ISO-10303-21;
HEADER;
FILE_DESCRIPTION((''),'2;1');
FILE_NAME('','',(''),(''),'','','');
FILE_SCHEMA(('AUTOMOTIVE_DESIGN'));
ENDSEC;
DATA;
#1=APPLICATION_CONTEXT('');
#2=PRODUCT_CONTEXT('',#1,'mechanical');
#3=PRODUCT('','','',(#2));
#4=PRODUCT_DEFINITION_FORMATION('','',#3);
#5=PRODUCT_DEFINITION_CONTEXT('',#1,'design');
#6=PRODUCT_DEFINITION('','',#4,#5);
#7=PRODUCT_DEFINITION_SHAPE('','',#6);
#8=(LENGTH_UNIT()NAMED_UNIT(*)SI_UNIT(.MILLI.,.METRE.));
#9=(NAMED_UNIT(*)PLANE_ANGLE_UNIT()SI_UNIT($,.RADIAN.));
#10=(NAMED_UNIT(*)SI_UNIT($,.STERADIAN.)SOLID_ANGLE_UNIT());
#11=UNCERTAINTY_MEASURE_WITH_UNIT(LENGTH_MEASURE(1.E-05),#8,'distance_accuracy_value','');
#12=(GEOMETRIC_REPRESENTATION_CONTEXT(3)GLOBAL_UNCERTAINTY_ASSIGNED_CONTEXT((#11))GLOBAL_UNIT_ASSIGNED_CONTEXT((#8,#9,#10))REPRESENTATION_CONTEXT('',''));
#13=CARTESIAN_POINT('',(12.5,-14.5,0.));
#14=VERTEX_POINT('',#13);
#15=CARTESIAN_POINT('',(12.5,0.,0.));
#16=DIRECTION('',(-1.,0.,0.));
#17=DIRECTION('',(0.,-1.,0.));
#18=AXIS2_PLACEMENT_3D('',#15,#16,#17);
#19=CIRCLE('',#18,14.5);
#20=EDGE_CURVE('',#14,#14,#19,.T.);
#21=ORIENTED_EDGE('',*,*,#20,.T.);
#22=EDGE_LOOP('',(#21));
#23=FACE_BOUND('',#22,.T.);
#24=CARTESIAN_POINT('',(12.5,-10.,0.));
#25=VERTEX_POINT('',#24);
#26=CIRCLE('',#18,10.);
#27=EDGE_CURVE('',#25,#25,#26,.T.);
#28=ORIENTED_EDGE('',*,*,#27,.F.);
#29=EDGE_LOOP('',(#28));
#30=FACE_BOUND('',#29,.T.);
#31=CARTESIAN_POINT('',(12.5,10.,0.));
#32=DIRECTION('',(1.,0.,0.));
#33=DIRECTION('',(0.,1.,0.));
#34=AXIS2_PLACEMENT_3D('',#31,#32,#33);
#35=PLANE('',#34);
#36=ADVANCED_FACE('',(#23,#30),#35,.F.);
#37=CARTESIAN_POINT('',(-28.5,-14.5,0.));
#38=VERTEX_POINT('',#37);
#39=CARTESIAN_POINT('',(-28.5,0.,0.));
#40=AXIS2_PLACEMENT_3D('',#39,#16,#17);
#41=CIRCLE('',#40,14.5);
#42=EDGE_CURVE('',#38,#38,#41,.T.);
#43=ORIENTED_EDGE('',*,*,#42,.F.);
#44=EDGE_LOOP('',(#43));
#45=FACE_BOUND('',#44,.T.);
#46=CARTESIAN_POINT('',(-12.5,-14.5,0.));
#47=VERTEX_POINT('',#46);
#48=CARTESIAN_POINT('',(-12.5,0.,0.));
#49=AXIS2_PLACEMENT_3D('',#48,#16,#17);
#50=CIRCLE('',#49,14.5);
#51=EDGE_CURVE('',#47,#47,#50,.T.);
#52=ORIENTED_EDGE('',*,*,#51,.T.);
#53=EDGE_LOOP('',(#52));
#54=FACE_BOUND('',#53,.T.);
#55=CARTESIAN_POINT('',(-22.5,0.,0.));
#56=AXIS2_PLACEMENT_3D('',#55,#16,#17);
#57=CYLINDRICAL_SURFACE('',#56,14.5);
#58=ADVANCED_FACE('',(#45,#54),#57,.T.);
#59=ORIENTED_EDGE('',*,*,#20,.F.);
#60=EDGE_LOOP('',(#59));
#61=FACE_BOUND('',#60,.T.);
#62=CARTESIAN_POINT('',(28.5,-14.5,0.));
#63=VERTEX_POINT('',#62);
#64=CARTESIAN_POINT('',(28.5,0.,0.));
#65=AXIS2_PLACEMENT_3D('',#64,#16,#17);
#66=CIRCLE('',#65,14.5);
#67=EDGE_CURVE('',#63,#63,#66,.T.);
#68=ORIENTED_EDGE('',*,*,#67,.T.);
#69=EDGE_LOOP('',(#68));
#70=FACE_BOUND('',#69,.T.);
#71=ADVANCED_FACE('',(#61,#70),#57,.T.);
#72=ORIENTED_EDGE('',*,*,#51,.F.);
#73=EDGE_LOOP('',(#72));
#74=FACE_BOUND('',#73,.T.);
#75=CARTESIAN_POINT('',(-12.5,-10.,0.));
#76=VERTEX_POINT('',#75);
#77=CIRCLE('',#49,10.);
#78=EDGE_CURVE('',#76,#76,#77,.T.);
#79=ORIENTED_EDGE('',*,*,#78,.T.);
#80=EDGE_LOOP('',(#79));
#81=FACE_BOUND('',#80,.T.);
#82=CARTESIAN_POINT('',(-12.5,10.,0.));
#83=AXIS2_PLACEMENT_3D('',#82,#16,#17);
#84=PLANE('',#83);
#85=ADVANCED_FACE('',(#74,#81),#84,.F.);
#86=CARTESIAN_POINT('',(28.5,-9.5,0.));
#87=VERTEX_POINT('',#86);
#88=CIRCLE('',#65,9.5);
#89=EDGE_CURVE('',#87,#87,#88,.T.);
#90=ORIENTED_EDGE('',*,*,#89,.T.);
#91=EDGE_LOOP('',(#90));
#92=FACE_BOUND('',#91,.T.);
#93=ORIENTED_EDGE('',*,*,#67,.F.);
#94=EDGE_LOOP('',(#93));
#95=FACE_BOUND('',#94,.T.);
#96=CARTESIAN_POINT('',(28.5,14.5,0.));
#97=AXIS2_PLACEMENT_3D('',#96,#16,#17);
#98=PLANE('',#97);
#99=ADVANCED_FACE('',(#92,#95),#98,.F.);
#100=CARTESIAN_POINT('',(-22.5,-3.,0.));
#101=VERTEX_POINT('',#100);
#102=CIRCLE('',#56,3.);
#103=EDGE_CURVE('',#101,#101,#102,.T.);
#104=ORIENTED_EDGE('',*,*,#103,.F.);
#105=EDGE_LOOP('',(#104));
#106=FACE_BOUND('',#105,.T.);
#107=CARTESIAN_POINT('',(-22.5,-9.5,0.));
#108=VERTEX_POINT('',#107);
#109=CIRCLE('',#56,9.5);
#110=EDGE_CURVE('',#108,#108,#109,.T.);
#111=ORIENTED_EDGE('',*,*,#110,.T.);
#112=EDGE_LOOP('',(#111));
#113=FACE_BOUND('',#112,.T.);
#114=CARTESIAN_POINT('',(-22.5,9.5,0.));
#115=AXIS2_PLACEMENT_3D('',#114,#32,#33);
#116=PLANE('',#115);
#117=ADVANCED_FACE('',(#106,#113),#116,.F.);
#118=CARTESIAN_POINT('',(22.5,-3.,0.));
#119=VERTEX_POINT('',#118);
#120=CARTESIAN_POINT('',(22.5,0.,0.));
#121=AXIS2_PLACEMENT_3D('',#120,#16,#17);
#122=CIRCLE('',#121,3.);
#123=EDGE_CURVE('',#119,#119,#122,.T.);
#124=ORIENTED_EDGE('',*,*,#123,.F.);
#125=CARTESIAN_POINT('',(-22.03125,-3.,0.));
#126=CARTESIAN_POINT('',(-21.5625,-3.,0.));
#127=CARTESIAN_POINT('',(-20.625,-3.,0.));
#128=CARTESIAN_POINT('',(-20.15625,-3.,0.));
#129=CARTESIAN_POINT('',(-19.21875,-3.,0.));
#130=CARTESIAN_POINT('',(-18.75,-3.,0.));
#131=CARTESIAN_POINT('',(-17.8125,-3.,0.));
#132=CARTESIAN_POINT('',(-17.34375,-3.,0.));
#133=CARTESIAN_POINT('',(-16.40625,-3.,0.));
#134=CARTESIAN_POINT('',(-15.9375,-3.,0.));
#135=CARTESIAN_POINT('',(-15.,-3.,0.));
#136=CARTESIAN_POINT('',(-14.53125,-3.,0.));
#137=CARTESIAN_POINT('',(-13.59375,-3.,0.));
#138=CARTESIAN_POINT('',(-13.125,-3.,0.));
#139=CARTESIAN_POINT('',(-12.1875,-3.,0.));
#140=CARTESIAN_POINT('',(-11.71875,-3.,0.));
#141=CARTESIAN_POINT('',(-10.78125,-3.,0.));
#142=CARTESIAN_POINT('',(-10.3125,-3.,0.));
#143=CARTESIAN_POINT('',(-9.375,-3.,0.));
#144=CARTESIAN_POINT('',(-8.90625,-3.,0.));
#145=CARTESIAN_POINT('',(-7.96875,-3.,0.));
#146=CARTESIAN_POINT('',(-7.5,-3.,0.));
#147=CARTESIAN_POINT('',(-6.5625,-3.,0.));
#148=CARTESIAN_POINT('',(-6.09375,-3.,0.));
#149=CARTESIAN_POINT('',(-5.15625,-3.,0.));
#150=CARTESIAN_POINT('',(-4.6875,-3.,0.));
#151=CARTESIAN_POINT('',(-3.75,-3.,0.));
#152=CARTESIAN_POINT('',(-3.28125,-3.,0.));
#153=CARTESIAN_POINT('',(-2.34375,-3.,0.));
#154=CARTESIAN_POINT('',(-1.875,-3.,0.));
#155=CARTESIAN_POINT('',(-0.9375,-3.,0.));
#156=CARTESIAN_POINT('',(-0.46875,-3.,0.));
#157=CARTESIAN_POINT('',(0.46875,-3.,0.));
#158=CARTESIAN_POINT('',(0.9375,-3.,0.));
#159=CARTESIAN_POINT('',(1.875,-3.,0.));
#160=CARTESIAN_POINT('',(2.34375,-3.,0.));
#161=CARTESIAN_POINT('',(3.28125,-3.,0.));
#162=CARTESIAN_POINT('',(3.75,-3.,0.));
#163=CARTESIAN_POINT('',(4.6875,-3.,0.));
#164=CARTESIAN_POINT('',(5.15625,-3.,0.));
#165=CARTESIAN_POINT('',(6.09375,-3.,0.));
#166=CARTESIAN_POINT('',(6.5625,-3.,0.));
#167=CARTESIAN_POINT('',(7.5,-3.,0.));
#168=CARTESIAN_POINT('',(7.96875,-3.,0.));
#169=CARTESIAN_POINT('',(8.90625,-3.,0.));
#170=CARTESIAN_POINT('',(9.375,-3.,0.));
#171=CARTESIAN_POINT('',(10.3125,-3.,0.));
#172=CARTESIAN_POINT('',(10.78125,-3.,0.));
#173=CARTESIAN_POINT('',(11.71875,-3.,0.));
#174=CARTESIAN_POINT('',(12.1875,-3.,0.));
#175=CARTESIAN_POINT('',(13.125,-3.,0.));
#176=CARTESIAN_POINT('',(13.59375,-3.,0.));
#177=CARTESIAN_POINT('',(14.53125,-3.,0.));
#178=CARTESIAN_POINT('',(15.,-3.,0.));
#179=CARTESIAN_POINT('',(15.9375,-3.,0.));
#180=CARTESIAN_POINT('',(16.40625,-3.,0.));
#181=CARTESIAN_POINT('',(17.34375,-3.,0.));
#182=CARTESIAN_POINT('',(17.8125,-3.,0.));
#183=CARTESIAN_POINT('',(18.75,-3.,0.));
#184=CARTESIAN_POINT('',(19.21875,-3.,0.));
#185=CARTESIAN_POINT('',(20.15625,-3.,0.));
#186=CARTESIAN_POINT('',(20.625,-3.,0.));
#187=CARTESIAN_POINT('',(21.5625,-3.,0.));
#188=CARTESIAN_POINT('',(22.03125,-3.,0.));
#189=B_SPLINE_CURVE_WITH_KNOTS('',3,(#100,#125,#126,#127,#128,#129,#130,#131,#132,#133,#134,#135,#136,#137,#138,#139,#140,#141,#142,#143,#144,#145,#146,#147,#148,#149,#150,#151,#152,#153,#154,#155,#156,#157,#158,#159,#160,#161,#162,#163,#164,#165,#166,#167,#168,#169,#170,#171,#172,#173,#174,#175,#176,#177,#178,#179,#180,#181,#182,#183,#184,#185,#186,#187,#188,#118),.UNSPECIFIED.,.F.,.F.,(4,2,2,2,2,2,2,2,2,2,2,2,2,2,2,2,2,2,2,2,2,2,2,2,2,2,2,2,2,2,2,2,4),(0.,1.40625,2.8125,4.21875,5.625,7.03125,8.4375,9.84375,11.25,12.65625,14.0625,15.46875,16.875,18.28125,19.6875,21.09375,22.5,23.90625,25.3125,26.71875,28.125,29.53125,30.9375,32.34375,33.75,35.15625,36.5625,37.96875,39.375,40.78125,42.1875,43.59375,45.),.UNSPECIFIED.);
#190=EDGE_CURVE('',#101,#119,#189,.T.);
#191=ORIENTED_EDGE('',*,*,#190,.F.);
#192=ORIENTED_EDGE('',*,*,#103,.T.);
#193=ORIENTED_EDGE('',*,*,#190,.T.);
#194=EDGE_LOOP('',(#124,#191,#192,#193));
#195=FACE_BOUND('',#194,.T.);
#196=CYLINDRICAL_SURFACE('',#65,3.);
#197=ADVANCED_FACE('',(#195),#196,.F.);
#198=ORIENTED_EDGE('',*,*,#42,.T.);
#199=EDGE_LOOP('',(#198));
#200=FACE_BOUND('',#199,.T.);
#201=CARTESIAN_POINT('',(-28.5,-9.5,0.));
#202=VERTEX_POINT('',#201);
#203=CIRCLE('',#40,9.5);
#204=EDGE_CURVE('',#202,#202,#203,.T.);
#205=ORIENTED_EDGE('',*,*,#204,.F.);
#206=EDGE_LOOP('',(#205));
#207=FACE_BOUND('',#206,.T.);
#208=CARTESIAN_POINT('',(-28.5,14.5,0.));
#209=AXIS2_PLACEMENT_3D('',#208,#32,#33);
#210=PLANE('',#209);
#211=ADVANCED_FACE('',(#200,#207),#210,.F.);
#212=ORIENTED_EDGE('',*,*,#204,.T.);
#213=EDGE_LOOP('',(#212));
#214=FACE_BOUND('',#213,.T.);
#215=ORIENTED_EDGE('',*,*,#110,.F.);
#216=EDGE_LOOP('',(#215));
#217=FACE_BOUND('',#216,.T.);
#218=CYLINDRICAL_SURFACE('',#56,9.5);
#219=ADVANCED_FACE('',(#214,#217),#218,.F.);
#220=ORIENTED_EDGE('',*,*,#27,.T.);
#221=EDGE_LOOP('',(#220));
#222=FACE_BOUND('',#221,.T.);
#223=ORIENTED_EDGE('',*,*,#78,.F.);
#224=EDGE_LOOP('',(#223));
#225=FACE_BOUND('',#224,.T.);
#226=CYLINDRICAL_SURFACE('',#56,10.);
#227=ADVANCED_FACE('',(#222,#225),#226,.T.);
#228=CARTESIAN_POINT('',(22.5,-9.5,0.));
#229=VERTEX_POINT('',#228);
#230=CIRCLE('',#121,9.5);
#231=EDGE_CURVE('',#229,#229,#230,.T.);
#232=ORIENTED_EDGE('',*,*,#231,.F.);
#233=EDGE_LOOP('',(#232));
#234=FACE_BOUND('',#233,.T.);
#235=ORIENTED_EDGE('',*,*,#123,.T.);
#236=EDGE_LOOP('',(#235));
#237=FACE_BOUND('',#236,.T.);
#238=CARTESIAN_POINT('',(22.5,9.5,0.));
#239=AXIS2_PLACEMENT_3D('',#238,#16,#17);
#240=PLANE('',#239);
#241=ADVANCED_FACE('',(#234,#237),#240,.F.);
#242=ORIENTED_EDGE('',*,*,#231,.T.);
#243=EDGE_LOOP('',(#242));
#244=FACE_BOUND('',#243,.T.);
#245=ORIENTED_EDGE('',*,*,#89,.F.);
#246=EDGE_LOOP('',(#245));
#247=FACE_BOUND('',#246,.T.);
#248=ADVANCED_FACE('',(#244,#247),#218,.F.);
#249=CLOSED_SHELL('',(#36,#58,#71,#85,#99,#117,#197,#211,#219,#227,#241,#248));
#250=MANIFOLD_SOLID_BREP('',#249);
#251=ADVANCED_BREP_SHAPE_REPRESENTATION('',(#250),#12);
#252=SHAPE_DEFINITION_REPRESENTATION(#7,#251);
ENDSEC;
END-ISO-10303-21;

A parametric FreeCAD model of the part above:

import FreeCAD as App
import Part
import Sketcher
Q = App.Units.Quantity


def add_polygon(sketch, points):
    """Adds a closed chain of lines whose ends are joined by coincident constraints."""
    first, n = sketch.GeometryCount, len(points)
    for a, b in zip(points, points[1:] + points[:1]):
        sketch.addGeometry(Part.LineSegment(App.Vector(*a, 0), App.Vector(*b, 0)), False)
    for i in range(n):
        sketch.addConstraint(Sketcher.Constraint("Coincident", first + i, 2, first + (i + 1) % n, 1))

doc = App.newDocument("Part")
body = doc.addObject("PartDesign::Body", "Body")

sketch1 = body.newObject("Sketcher::SketchObject", "Sketch")
sketch1.AttachmentSupport = (doc.getObject("XY_Plane"), [""])
sketch1.MapMode = "FlatFace"
add_polygon(sketch1, [(12.5, 10), (-12.5, 10), (-12.5, 14.5), (-28.5, 14.5), (-28.5, 9.5), (-22.5, 9.5), (-22.5, 0), (22.5, 0), (22.5, 9.5), (28.5, 9.5), (28.5, 14.5), (12.5, 14.5)])
sketch1.addConstraint([
    Sketcher.Constraint("Horizontal", 0),
    Sketcher.Constraint("Vertical", 1),
    Sketcher.Constraint("Horizontal", 2),
    Sketcher.Constraint("Vertical", 3),
    Sketcher.Constraint("Horizontal", 4),
    Sketcher.Constraint("Vertical", 5),
    Sketcher.Constraint("Horizontal", 6),
    Sketcher.Constraint("Vertical", 7),
    Sketcher.Constraint("Horizontal", 8),
    Sketcher.Constraint("Vertical", 9),
    Sketcher.Constraint("Horizontal", 10),
    Sketcher.Constraint("Vertical", 11),
    Sketcher.Constraint("Symmetric", 5, 2, 6, 2, -1, 1),
    Sketcher.Constraint("Symmetric", 3, 2, 8, 2, -2),
    Sketcher.Constraint("Symmetric", 1, 2, 10, 2, -2),
    Sketcher.Constraint("DistanceX", 0, 2, 0, 1, Q("25 mm")),
    Sketcher.Constraint("DistanceX", 2, 2, 2, 1, Q("16 mm")),
    Sketcher.Constraint("DistanceX", 4, 1, 4, 2, Q("6 mm")),
    Sketcher.Constraint("DistanceY", 3, 2, 3, 1, Q("5 mm")),
    Sketcher.Constraint("DistanceY", 1, 1, 1, 2, Q("4.5 mm")),
    Sketcher.Constraint("DistanceY", 5, 2, 5, 1, Q("9.5 mm")),
])
revolution = body.newObject("PartDesign::Revolution", "Revolution")
revolution.Profile = sketch1
revolution.ReferenceAxis = (sketch1, ["H_Axis"])
revolution.Angle = 360

sketch2 = body.newObject("Sketcher::SketchObject", "Sketch001")
sketch2.AttachmentSupport = (doc.getObject("YZ_Plane"), [""])
sketch2.MapMode = "FlatFace"
sketch2.AttachmentOffset = App.Placement(App.Vector(0, 0, -22.5), App.Rotation())
sketch2.addGeometry(Part.Circle(App.Vector(0, 0, 0), App.Vector(0, 0, 1), 3), False)
sketch2.addConstraint([
    Sketcher.Constraint("Coincident", 0, 3, -1, 1),
    Sketcher.Constraint("Diameter", 0, Q("6 mm")),
])
pocket1 = body.newObject("PartDesign::Pocket", "Pocket")
pocket1.Profile = sketch2
pocket1.Type = "ThroughAll"
pocket1.Reversed = True

doc.recompute()
